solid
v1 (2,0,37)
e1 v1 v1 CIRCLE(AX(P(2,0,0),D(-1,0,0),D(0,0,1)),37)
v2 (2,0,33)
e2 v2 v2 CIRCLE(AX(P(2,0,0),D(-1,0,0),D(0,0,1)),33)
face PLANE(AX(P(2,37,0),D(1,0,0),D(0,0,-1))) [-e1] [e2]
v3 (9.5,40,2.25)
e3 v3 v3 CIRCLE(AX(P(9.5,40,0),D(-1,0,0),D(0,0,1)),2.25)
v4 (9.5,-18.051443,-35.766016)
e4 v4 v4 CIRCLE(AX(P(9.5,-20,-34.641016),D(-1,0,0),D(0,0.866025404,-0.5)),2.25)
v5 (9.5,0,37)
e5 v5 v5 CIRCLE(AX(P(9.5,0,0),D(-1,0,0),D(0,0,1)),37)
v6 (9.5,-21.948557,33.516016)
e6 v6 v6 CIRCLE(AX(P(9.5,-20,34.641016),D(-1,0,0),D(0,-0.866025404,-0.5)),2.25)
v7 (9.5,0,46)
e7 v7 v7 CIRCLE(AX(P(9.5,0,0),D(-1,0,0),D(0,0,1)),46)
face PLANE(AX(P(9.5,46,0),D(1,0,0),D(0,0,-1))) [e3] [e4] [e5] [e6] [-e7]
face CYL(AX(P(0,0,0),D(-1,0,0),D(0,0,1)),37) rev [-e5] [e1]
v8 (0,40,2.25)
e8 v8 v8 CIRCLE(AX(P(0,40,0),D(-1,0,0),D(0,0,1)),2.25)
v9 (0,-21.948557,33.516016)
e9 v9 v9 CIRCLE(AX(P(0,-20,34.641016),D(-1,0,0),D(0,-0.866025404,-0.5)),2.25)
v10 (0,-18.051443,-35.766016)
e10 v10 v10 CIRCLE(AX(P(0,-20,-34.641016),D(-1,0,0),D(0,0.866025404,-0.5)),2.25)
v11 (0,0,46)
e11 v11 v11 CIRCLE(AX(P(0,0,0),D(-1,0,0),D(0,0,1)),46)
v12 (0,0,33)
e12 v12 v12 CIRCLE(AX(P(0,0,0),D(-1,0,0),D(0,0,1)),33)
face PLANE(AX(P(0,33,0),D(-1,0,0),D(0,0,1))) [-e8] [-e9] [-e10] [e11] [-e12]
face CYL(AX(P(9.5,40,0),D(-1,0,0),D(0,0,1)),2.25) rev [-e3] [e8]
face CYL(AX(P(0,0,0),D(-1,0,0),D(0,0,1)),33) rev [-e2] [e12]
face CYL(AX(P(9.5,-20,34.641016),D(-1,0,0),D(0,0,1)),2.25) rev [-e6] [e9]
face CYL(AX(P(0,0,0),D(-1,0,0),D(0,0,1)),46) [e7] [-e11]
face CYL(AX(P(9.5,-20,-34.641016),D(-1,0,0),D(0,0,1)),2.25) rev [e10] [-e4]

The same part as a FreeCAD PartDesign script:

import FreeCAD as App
import Part
import Sketcher

V = App.Vector
Q = App.Units.Quantity


def add_polygon(sketch, points):
    """Adds a closed chain of lines whose ends are joined by coincident constraints."""
    first, n = sketch.GeometryCount, len(points)
    for a, b in zip(points, points[1:] + points[:1]):
        sketch.addGeometry(Part.LineSegment(App.Vector(*a, 0), App.Vector(*b, 0)), False)
    for i in range(n):
        sketch.addConstraint(Sketcher.Constraint("Coincident", first + i, 2, first + (i + 1) % n, 1))

doc = App.newDocument("Part")
body = doc.addObject("PartDesign::Body", "Body")

sketch1 = doc.addObject("Sketcher::SketchObject", "Sketch")
body.addObject(sketch1)
sketch1.AttachmentSupport = (doc.XY_Plane, [""])
sketch1.MapMode = "FlatFace"
add_polygon(sketch1, [(0, 46), (0, 33), (2, 33), (2, 37), (9.5, 37), (9.5, 46)])
sketch1.addConstraint([
    Sketcher.Constraint("Vertical", 0),
    Sketcher.Constraint("Horizontal", 1),
    Sketcher.Constraint("Vertical", 2),
    Sketcher.Constraint("Horizontal", 3),
    Sketcher.Constraint("Vertical", 4),
    Sketcher.Constraint("Horizontal", 5),
    Sketcher.Constraint("PointOnObject", 0, 2, -2),
    Sketcher.Constraint("DistanceX", 1, 1, 1, 2, Q("2 mm")),
    Sketcher.Constraint("DistanceY", 0, 2, 0, 1, Q("13 mm")),
    Sketcher.Constraint("DistanceY", 2, 1, 2, 2, Q("4 mm")),
    Sketcher.Constraint("DistanceX", 3, 1, 3, 2, Q("7.5 mm")),
    Sketcher.Constraint("DistanceY", -1, 1, 0, 2, Q("33 mm")),
])
revolution = doc.addObject("PartDesign::Revolution", "Revolution")
body.addObject(revolution)
revolution.Profile = sketch1
revolution.ReferenceAxis = (sketch1, ["H_Axis"])
revolution.Angle = 360

sketch2 = doc.addObject("Sketcher::SketchObject", "Sketch001")
body.addObject(sketch2)
sketch2.AttachmentSupport = (doc.YZ_Plane, [""])
sketch2.MapMode = "FlatFace"
sketch2.addGeometry(Part.Circle(V(40, 0, 0), V(0, 0, 1), 2.25), False)
sketch2.addConstraint([
    Sketcher.Constraint("PointOnObject", 0, 3, -1),
    Sketcher.Constraint("Diameter", 0, Q("4.5 mm")),
    Sketcher.Constraint("DistanceX", -1, 1, 0, 3, Q("40 mm")),
])
pocket1 = doc.addObject("PartDesign::Pocket", "Pocket")
body.addObject(pocket1)
pocket1.Profile = sketch2
pocket1.Type = "ThroughAll"
pocket1.Reversed = True
doc.recompute()

polarpattern = doc.addObject("PartDesign::PolarPattern", "PolarPattern")
body.addObject(polarpattern)
polarpattern.Originals = [pocket1]
polarpattern.Axis = (doc.X_Axis, [""])
polarpattern.Angle = 360
polarpattern.Occurrences = 3
body.Tip = polarpattern

doc.recompute()
